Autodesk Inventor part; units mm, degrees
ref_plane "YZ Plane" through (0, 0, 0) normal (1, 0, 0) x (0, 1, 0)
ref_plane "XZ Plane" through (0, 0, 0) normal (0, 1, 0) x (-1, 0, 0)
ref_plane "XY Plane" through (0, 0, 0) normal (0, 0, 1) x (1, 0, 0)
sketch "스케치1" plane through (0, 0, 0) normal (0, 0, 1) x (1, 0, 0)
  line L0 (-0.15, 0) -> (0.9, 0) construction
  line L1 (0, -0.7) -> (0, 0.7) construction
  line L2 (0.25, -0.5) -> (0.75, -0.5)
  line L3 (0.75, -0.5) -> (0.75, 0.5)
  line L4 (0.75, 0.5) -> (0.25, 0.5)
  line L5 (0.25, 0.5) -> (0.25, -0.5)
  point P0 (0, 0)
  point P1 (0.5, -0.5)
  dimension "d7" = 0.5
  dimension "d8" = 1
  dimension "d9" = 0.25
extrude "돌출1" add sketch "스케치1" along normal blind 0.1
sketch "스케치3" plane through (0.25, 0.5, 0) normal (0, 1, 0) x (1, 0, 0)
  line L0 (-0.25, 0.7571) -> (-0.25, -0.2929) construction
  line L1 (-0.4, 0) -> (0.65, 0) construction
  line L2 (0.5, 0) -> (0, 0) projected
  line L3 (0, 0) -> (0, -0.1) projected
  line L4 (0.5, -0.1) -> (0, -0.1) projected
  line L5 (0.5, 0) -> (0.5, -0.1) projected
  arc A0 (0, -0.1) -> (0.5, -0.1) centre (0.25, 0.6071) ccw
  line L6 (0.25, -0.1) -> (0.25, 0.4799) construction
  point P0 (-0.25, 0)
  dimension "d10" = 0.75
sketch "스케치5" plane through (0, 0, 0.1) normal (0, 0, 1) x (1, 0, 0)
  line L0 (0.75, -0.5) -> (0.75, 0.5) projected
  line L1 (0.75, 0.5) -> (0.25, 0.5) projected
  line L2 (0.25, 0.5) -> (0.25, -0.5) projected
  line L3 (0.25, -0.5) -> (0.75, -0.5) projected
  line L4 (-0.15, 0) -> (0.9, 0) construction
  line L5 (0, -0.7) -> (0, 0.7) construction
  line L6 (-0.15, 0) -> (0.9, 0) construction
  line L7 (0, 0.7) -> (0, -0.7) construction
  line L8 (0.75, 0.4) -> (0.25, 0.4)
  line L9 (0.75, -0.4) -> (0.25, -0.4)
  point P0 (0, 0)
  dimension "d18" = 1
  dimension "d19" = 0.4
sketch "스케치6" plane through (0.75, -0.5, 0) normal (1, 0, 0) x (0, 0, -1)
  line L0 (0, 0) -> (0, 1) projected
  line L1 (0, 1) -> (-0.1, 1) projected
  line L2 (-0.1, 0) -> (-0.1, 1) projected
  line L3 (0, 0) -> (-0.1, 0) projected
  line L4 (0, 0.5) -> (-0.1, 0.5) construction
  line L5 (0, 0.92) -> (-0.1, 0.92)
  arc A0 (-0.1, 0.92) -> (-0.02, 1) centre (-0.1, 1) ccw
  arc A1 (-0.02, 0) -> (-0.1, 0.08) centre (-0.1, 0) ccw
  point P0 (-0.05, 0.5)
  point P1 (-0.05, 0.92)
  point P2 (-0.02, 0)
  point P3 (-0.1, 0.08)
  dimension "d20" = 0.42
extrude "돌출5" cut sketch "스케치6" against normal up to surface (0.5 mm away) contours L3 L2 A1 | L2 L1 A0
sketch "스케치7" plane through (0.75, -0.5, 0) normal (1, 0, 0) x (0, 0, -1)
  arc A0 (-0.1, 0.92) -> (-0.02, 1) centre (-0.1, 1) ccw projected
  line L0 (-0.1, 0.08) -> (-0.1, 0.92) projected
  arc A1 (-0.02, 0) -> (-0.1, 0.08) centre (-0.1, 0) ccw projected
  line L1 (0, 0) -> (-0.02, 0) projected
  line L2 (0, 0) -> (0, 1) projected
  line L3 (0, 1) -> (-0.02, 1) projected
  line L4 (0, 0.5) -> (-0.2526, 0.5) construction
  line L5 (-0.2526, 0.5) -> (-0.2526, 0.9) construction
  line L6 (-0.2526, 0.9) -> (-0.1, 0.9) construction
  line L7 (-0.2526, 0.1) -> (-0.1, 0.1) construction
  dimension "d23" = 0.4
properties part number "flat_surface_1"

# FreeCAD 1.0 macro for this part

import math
import FreeCAD as App
import Part
import Sketcher
from FreeCAD import Vector


def add_polygon(sketch, points):
    """Adds a closed chain of lines whose ends are joined by coincident constraints."""
    first, n = sketch.GeometryCount, len(points)
    for a, b in zip(points, points[1:] + points[:1]):
        sketch.addGeometry(Part.LineSegment(App.Vector(*a, 0), App.Vector(*b, 0)), False)
    for i in range(n):
        sketch.addConstraint(Sketcher.Constraint("Coincident", first + i, 2, first + (i + 1) % n, 1))

doc = App.newDocument("Part")
body = doc.addObject("PartDesign::Body", "Body")

# Sketch on XY plane
sketch1 = body.newObject("Sketcher::SketchObject", "Sketch")
sketch1.AttachmentSupport = (doc.getObject("XY_Plane"), [""])
sketch1.MapMode = "FlatFace"
add_polygon(sketch1, [(0.2, 0.5), (0.2, -0.5), (0.8, -0.5), (0.8, 0.5)])  # lines 0-3
sketch1.addConstraint([
    Sketcher.Constraint("Vertical", 0),
    Sketcher.Constraint("Horizontal", 1),
    Sketcher.Constraint("Vertical", 2),
    Sketcher.Constraint("Horizontal", 3),
    Sketcher.Constraint("DistanceY", 0, 2, 0, 1, 1.0),
    Sketcher.Constraint("DistanceX", 1, 1, 1, 2, 0.5),
    Sketcher.Constraint("DistanceY", 0, 2, -1, 1, 0.5),
    Sketcher.Constraint("DistanceX", -1, 1, 0, 2, 0.25),
])
pad1 = body.newObject("PartDesign::Pad", "Pad")
pad1.Profile = sketch1
pad1.Length = 0.1

# Sketch on YZ plane
sketch2 = body.newObject("Sketcher::SketchObject", "Sketch001")
sketch2.AttachmentSupport = (doc.getObject("YZ_Plane"), [""])
sketch2.MapMode = "FlatFace"
sketch2.AttachmentOffset = App.Placement(Vector(0, 0, 0.75), App.Rotation())
sketch2.addGeometry([
    Part.LineSegment(Vector(-0.5, 0.1, 0), Vector(-0.5, 0.02, 0)),  # 0
    Part.ArcOfCircle(Part.Circle(Vector(-0.5, 0.1, 0), Vector(0, 0, 1), 0.08), math.radians(-90), math.radians(0)),  # 1
    Part.LineSegment(Vector(-0.42, 0.1, 0), Vector(-0.5, 0.1, 0)),  # 2
    Part.LineSegment(Vector(0.5, 0.1, 0), Vector(0.42, 0.1, 0)),  # 3
    Part.ArcOfCircle(Part.Circle(Vector(0.5, 0.1, 0), Vector(0, 0, 1), 0.08), math.radians(180), math.radians(270)),  # 4
    Part.LineSegment(Vector(0.5, 0.02, 0), Vector(0.5, 0.1, 0)),  # 5
], False)
sketch2.addConstraint([
    Sketcher.Constraint("Coincident", 0, 2, 1, 1),
    Sketcher.Constraint("Coincident", 1, 2, 2, 1),
    Sketcher.Constraint("Coincident", 2, 2, 0, 1),
    Sketcher.Constraint("Coincident", 3, 2, 4, 1),
    Sketcher.Constraint("Coincident", 4, 2, 5, 1),
    Sketcher.Constraint("Coincident", 5, 2, 3, 1),
    Sketcher.Constraint("Vertical", 0),
    Sketcher.Constraint("Horizontal", 2),
    Sketcher.Constraint("Horizontal", 3),
    Sketcher.Constraint("Vertical", 5),
    Sketcher.Constraint("Coincident", 2, 2, 1, 3),
    Sketcher.Constraint("Coincident", 5, 2, 4, 3),
    Sketcher.Constraint("Equal", 1, 4),
    Sketcher.Constraint("Symmetric", 1, 3, 4, 3, -2),
    Sketcher.Constraint("DistanceX", 1, 2, -1, 1, 0.42),
    Sketcher.Constraint("Radius", 1, 0.08),
    Sketcher.Constraint("DistanceY", -1, 1, 1, 3, 0.1),
])
pocket1 = body.newObject("PartDesign::Pocket", "Pocket")
pocket1.Profile = sketch2
pocket1.Length = 0.5

doc.recompute()
